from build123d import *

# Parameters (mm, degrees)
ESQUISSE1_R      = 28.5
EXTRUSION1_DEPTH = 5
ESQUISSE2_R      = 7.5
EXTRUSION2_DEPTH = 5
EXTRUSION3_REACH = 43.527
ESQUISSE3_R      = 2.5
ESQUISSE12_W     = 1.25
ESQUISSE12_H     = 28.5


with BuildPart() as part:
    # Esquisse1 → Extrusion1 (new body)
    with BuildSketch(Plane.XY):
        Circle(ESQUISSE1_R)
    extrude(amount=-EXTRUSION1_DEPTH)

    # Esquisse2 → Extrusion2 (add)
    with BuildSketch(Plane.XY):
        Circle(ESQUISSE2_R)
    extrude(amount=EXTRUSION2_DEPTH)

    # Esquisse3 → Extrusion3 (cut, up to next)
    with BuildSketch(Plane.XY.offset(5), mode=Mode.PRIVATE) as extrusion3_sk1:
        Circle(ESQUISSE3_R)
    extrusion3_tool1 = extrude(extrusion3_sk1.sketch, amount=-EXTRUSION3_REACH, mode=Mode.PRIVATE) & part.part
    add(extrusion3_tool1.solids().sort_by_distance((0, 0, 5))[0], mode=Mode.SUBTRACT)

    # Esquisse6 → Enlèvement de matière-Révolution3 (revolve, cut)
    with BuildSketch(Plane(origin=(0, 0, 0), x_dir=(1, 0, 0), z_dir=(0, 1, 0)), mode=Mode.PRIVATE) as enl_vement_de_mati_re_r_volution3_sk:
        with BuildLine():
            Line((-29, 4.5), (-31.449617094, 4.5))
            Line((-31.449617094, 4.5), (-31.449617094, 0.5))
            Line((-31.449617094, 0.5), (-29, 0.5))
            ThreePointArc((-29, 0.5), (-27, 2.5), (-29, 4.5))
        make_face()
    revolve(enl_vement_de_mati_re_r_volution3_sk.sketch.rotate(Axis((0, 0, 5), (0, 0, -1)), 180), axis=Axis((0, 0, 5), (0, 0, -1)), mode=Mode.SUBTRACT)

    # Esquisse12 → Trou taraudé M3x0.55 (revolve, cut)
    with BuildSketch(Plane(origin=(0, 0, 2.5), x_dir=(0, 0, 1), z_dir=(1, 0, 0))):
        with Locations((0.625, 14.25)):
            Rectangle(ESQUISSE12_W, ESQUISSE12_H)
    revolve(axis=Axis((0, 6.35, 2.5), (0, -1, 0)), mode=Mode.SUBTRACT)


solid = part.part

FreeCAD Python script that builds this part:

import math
import FreeCAD as App
import Part
import Sketcher
Q = App.Units.Quantity


def add_polygon(sketch, points):
    """Adds a closed chain of lines whose ends are joined by coincident constraints."""
    first, n = sketch.GeometryCount, len(points)
    for a, b in zip(points, points[1:] + points[:1]):
        sketch.addGeometry(Part.LineSegment(App.Vector(*a, 0), App.Vector(*b, 0)), False)
    for i in range(n):
        sketch.addConstraint(Sketcher.Constraint("Coincident", first + i, 2, first + (i + 1) % n, 1))

doc = App.newDocument("Part")
body = doc.addObject("PartDesign::Body", "Body")

sketch1 = body.newObject("Sketcher::SketchObject", "Sketch")
sketch1.AttachmentSupport = (doc.getObject("XY_Plane"), [""])
sketch1.MapMode = "FlatFace"
sketch1.addGeometry(Part.Circle(App.Vector(0, 0, 0), App.Vector(0, 0, 1), 28.5), False)
sketch1.addConstraint([
    Sketcher.Constraint("Coincident", 0, 3, -1, 1),
    Sketcher.Constraint("Diameter", 0, Q("57 mm")),
])
pad1 = body.newObject("PartDesign::Pad", "Pad")
pad1.Profile = sketch1
pad1.Length = 5
pad1.Reversed = True

sketch2 = body.newObject("Sketcher::SketchObject", "Sketch001")
sketch2.AttachmentSupport = (doc.getObject("XY_Plane"), [""])
sketch2.MapMode = "FlatFace"
sketch2.addGeometry(Part.Circle(App.Vector(0, 0, 0), App.Vector(0, 0, 1), 7.5), False)
sketch2.addConstraint([
    Sketcher.Constraint("Coincident", 0, 3, -1, 1),
    Sketcher.Constraint("Diameter", 0, Q("15 mm")),
])
pad2 = body.newObject("PartDesign::Pad", "Pad001")
pad2.Profile = sketch2
pad2.Length = 5

sketch3 = body.newObject("Sketcher::SketchObject", "Sketch002")
sketch3.AttachmentSupport = (doc.getObject("XY_Plane"), [""])
sketch3.MapMode = "FlatFace"
sketch3.AttachmentOffset = App.Placement(App.Vector(0, 0, 5), App.Rotation())
sketch3.addGeometry(Part.Circle(App.Vector(0, 0, 0), App.Vector(0, 0, 1), 2.5), False)
sketch3.addConstraint([
    Sketcher.Constraint("Coincident", 0, 3, -1, 1),
    Sketcher.Constraint("Diameter", 0, Q("5 mm")),
])
pocket1 = body.newObject("PartDesign::Pocket", "Pocket")
pocket1.Profile = sketch3
pocket1.Type = "UpToFirst"

sketch4 = body.newObject("Sketcher::SketchObject", "Sketch003")
sketch4.AttachmentSupport = (doc.getObject("XZ_Plane"), [""])
sketch4.MapMode = "FlatFace"
sketch4.addGeometry([
    Part.LineSegment(App.Vector(-29, -4.5, 0), App.Vector(-31.449617, -4.5, 0)),
    Part.LineSegment(App.Vector(-31.449617, -4.5, 0), App.Vector(-31.449617, -0.5, 0)),
    Part.LineSegment(App.Vector(-31.449617, -0.5, 0), App.Vector(-29, -0.5, 0)),
    Part.ArcOfCircle(Part.Circle(App.Vector(-29, -2.5, 0), App.Vector(0, 0, 1), 2), math.radians(-90), math.radians(90)),
], False)
sketch4.addConstraint([
    Sketcher.Constraint("Coincident", 0, 2, 1, 1),
    Sketcher.Constraint("Coincident", 1, 2, 2, 1),
    Sketcher.Constraint("Tangent", 2, 2, 3, 2),
    Sketcher.Constraint("Tangent", 3, 1, 0, 1),
    Sketcher.Constraint("Horizontal", 0),
    Sketcher.Constraint("Vertical", 1),
    Sketcher.Constraint("Horizontal", 2),
    Sketcher.Constraint("Radius", 3, Q("2 mm")),
    Sketcher.Constraint("DistanceX", 3, 3, -1, 1, Q("29 mm")),
    Sketcher.Constraint("DistanceY", 3, 3, -1, 1, Q("2.5 mm")),
    Sketcher.Constraint("DistanceX", 0, 2, 0, 1, Q("2.449617 mm")),
])
groove = body.newObject("PartDesign::Groove", "Groove")
groove.Profile = sketch4
groove.ReferenceAxis = (sketch4, ["V_Axis"])
groove.Angle = 360

sketch5 = body.newObject("Sketcher::SketchObject", "Sketch004")
sketch5.AttachmentSupport = (doc.getObject("YZ_Plane"), [""])
sketch5.MapMode = "FlatFace"
add_polygon(sketch5, [(-28.5, 2.5), (0, 2.5), (0, 3.75), (-28.5, 3.75)])
sketch5.addGeometry(Part.LineSegment(App.Vector(0, 2.5, 0), App.Vector(-28.5, 2.5, 0)), True)
sketch5.addConstraint([
    Sketcher.Constraint("Horizontal", 0),
    Sketcher.Constraint("Vertical", 1),
    Sketcher.Constraint("Horizontal", 2),
    Sketcher.Constraint("Vertical", 3),
    Sketcher.Constraint("Horizontal", 4),
    Sketcher.Constraint("Coincident", 4, 1, 0, 2),
    Sketcher.Constraint("PointOnObject", 0, 2, -2),
    Sketcher.Constraint("Vertical", 2, 2, 4, 2),
    Sketcher.Constraint("DistanceX", 0, 1, 0, 2, Q("28.5 mm")),
    Sketcher.Constraint("DistanceY", 1, 1, 1, 2, Q("1.25 mm")),
    Sketcher.Constraint("DistanceY", -1, 1, 0, 2, Q("2.5 mm")),
])
groove2 = body.newObject("PartDesign::Groove", "Groove001")
groove2.Profile = sketch5
groove2.ReferenceAxis = (sketch5, ["Axis0"])
groove2.Angle = 360

doc.recompute()
